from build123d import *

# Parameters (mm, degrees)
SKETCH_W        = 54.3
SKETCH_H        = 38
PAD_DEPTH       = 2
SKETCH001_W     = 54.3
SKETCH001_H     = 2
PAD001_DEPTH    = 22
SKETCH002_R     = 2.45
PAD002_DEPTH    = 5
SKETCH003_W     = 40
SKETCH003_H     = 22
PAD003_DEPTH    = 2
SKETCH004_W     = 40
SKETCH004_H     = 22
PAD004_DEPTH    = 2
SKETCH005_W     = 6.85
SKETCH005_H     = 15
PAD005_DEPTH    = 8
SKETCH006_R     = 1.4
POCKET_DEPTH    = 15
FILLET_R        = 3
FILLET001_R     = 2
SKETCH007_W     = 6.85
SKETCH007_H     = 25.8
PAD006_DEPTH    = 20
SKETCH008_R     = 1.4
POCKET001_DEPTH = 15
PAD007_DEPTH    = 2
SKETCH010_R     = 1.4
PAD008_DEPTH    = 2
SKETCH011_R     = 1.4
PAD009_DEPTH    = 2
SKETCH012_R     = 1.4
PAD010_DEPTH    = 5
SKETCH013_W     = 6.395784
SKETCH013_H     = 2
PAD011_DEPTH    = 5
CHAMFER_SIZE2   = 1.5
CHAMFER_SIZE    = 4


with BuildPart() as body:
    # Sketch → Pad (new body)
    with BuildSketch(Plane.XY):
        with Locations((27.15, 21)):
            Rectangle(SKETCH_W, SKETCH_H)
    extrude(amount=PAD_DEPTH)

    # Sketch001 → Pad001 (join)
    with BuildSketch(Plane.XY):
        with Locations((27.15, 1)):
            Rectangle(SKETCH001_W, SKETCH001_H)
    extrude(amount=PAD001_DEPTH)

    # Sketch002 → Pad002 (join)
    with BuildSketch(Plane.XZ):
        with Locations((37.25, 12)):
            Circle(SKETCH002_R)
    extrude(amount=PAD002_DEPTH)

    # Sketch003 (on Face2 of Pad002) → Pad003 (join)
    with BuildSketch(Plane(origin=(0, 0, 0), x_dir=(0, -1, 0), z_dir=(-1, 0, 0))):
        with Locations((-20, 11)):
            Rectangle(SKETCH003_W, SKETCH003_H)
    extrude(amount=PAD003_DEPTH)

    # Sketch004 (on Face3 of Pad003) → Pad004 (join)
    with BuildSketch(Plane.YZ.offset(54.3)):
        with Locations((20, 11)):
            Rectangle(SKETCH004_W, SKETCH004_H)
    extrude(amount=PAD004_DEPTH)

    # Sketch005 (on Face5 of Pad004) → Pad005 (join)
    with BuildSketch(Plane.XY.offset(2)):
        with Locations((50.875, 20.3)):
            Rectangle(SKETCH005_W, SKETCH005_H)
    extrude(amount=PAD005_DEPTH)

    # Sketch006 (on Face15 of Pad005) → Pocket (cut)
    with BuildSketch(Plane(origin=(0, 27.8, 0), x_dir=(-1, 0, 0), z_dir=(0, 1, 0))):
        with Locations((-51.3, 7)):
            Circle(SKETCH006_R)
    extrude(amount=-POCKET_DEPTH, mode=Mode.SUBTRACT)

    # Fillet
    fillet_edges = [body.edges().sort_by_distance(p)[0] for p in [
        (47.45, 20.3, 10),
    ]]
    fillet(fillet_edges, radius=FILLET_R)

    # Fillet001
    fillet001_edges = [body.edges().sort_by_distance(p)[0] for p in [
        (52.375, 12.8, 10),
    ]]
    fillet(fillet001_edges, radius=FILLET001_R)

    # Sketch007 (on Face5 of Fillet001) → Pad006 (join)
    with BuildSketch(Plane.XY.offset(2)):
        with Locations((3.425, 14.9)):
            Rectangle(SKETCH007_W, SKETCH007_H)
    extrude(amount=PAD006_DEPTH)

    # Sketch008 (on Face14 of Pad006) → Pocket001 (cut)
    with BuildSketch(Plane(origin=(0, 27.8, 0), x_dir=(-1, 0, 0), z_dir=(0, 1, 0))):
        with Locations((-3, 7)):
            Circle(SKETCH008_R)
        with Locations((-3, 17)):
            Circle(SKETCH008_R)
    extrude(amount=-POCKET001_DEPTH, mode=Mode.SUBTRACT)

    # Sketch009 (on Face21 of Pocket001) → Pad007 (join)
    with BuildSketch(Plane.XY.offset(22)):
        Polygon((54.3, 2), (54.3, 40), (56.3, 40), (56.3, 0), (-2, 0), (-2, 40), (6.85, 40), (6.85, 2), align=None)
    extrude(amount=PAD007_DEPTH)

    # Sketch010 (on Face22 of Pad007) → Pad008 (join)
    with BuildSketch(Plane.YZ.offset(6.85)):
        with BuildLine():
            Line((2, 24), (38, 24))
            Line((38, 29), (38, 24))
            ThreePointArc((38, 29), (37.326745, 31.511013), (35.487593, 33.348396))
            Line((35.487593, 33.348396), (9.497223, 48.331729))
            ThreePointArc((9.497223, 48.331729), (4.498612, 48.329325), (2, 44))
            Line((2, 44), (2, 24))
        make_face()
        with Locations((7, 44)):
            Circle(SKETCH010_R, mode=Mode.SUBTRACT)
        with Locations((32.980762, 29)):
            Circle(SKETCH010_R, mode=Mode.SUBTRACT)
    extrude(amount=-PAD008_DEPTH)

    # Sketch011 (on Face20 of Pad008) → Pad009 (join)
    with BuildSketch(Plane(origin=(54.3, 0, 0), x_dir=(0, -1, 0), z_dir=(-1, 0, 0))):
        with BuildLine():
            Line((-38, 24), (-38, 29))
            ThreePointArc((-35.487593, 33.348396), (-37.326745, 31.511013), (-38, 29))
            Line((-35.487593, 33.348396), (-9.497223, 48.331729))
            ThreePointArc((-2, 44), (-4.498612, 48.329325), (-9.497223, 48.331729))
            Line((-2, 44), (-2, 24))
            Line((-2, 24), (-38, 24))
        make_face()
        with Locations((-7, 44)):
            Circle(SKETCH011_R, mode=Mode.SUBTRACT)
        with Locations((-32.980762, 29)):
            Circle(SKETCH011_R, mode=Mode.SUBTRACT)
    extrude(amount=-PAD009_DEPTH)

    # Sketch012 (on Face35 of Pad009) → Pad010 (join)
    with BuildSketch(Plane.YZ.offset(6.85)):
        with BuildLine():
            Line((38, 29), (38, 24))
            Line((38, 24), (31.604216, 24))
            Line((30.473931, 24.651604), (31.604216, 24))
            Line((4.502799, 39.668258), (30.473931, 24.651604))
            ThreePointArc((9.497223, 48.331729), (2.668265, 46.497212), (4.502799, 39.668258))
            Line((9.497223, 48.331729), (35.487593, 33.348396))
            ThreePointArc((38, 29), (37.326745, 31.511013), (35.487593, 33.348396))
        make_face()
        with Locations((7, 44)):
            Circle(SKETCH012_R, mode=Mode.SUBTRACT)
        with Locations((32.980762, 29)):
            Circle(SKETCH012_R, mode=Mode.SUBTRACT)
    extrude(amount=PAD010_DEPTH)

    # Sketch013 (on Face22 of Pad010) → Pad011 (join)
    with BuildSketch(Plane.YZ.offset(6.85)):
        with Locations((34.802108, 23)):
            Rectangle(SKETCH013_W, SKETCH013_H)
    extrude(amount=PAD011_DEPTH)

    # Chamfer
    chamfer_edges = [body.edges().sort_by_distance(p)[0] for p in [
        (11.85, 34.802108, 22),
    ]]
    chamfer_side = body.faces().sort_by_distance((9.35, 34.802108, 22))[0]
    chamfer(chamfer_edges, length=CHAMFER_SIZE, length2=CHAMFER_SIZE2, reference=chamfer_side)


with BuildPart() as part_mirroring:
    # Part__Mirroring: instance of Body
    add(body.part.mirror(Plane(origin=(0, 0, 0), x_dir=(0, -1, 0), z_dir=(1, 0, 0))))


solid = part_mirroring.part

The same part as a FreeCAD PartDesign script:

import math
import FreeCAD as App
import Part
import Sketcher


def edges_at(feature, points):
    """Names of the edges that pass closest to the given points."""
    edges = feature.Shape.Edges
    near = lambda p: min(range(len(edges)), key=lambda i: edges[i].distToShape(Part.Vertex(*p))[0])
    return sorted({f"Edge{near(p) + 1}" for p in points})


def add_polygon(sketch, points):
    """Adds a closed chain of lines whose ends are joined by coincident constraints."""
    first, n = sketch.GeometryCount, len(points)
    for a, b in zip(points, points[1:] + points[:1]):
        sketch.addGeometry(Part.LineSegment(App.Vector(*a, 0), App.Vector(*b, 0)), False)
    for i in range(n):
        sketch.addConstraint(Sketcher.Constraint("Coincident", first + i, 2, first + (i + 1) % n, 1))

doc = App.newDocument("Part")
body = doc.addObject("PartDesign::Body", "Body")

sketch1 = body.newObject("Sketcher::SketchObject", "Sketch")
sketch1.AttachmentSupport = (doc.getObject("XY_Plane"), [""])
sketch1.MapMode = "FlatFace"
add_polygon(sketch1, [(0, 40), (0, 2), (54, 2), (54, 40)])
sketch1.addConstraint([
    Sketcher.Constraint("Vertical", 0),
    Sketcher.Constraint("Horizontal", 1),
    Sketcher.Constraint("Vertical", 2),
    Sketcher.Constraint("Horizontal", 3),
    Sketcher.Constraint("PointOnObject", 0, 2, -2),
    Sketcher.Constraint("DistanceY", 0, 2, 0, 1, 38.0),
    Sketcher.Constraint("DistanceX", 1, 1, 1, 2, 54.3),
    Sketcher.Constraint("DistanceY", -1, 1, 0, 2, 2.0),
])
pad1 = body.newObject("PartDesign::Pad", "Pad")
pad1.Profile = sketch1
pad1.Length = 2

sketch2 = body.newObject("Sketcher::SketchObject", "Sketch001")
sketch2.AttachmentSupport = (doc.getObject("XY_Plane"), [""])
sketch2.MapMode = "FlatFace"
add_polygon(sketch2, [(0, 2), (0, 0), (54.3, 0), (54.3, 2)])
sketch2.addConstraint([
    Sketcher.Constraint("Vertical", 0),
    Sketcher.Constraint("Horizontal", 1),
    Sketcher.Constraint("Vertical", 2),
    Sketcher.Constraint("Horizontal", 3),
    Sketcher.Constraint("Coincident", 0, 2, -1, 1),
    Sketcher.Constraint("DistanceY", 0, 2, 0, 1, 2.0),
    Sketcher.Constraint("DistanceX", 1, 1, 1, 2, 54.3),
])
pad2 = body.newObject("PartDesign::Pad", "Pad001")
pad2.Profile = sketch2
pad2.Length = 22

sketch3 = body.newObject("Sketcher::SketchObject", "Sketch002")
sketch3.AttachmentSupport = (doc.getObject("XZ_Plane"), [""])
sketch3.MapMode = "FlatFace"
sketch3.addGeometry(Part.Circle(App.Vector(37.2, 12, 0), App.Vector(0, 0, 1), 2.5), False)
sketch3.addConstraint([
    Sketcher.Constraint("Diameter", 0, 4.9),
    Sketcher.Constraint("DistanceY", -1, 1, 0, 3, 12.0),
    Sketcher.Constraint("DistanceX", -1, 1, 0, 3, 37.25),
])
pad3 = body.newObject("PartDesign::Pad", "Pad002")
pad3.Profile = sketch3
pad3.Length = 5

sketch4 = body.newObject("Sketcher::SketchObject", "Sketch003")
sketch4.AttachmentSupport = (doc.getObject("YZ_Plane"), [""])
sketch4.MapMode = "FlatFace"
add_polygon(sketch4, [(40, 22), (40, 0), (0, 0), (0, 22)])
sketch4.addConstraint([
    Sketcher.Constraint("Vertical", 0),
    Sketcher.Constraint("Horizontal", 1),
    Sketcher.Constraint("Vertical", 2),
    Sketcher.Constraint("Horizontal", 3),
    Sketcher.Constraint("Coincident", 1, 2, -1, 1),
    Sketcher.Constraint("DistanceX", 1, 2, 1, 1, 40.0),
    Sketcher.Constraint("DistanceY", 0, 2, 0, 1, 22.0),
])
pad4 = body.newObject("PartDesign::Pad", "Pad003")
pad4.Profile = sketch4
pad4.Length = 2
pad4.Reversed = True

sketch5 = body.newObject("Sketcher::SketchObject", "Sketch004")
sketch5.AttachmentSupport = (doc.getObject("YZ_Plane"), [""])
sketch5.MapMode = "FlatFace"
sketch5.AttachmentOffset = App.Placement(App.Vector(0, 0, 54.3), App.Rotation())
add_polygon(sketch5, [(0, 22), (0, 0), (40, 0), (40, 22)])
sketch5.addConstraint([
    Sketcher.Constraint("Vertical", 0),
    Sketcher.Constraint("Horizontal", 1),
    Sketcher.Constraint("Vertical", 2),
    Sketcher.Constraint("Horizontal", 3),
    Sketcher.Constraint("Coincident", 0, 2, -1, 1),
    Sketcher.Constraint("DistanceX", 1, 1, 1, 2, 40.0),
    Sketcher.Constraint("DistanceY", 0, 2, 0, 1, 22.0),
])
pad5 = body.newObject("PartDesign::Pad", "Pad004")
pad5.Profile = sketch5
pad5.Length = 2

sketch6 = body.newObject("Sketcher::SketchObject", "Sketch005")
sketch6.AttachmentSupport = (doc.getObject("XY_Plane"), [""])
sketch6.MapMode = "FlatFace"
sketch6.AttachmentOffset = App.Placement(App.Vector(0, 0, 2), App.Rotation())
add_polygon(sketch6, [(47, 28), (47, 13), (54, 13), (54, 28)])
sketch6.addConstraint([
    Sketcher.Constraint("Vertical", 0),
    Sketcher.Constraint("Horizontal", 1),
    Sketcher.Constraint("Vertical", 2),
    Sketcher.Constraint("Horizontal", 3),
    Sketcher.Constraint("DistanceY", 0, 2, 0, 1, 15.0),
    Sketcher.Constraint("DistanceX", 1, 1, 1, 2, 6.85),
    Sketcher.Constraint("DistanceY", -1, 1, 0, 2, 12.8),
    Sketcher.Constraint("DistanceX", -1, 1, 1, 2, 54.3),
])
pad6 = body.newObject("PartDesign::Pad", "Pad005")
pad6.Profile = sketch6
pad6.Length = 8

sketch7 = body.newObject("Sketcher::SketchObject", "Sketch006")
sketch7.AttachmentSupport = (doc.getObject("XZ_Plane"), [""])
sketch7.MapMode = "FlatFace"
sketch7.AttachmentOffset = App.Placement(App.Vector(0, 0, -27.8), App.Rotation())
sketch7.addGeometry(Part.Circle(App.Vector(51.3, 7, 0), App.Vector(0, 0, 1), 1.4), False)
sketch7.addConstraint([
    Sketcher.Constraint("Diameter", 0, 2.8),
    Sketcher.Constraint("DistanceY", -1, 1, 0, 3, 7.0),
    Sketcher.Constraint("DistanceX", -1, 1, 0, 3, 51.3),
])
pocket1 = body.newObject("PartDesign::Pocket", "Pocket")
pocket1.Profile = sketch7
pocket1.Length = 15
pocket1.Reversed = True
doc.recompute()

fillet = body.newObject("PartDesign::Fillet", "Fillet")
fillet.Base = (pocket1, edges_at(pocket1, [(47.45, 20.3, 10)]))
fillet.Radius = 3
doc.recompute()

fillet2 = body.newObject("PartDesign::Fillet", "Fillet001")
fillet2.Base = (fillet, edges_at(fillet, [(52.375, 12.8, 10)]))
fillet2.Radius = 2

sketch8 = body.newObject("Sketcher::SketchObject", "Sketch007")
sketch8.AttachmentSupport = (doc.getObject("XY_Plane"), [""])
sketch8.MapMode = "FlatFace"
sketch8.AttachmentOffset = App.Placement(App.Vector(0, 0, 2), App.Rotation())
add_polygon(sketch8, [(0, 28), (0, 2), (7, 2), (7, 28)])
sketch8.addConstraint([
    Sketcher.Constraint("Vertical", 0),
    Sketcher.Constraint("Horizontal", 1),
    Sketcher.Constraint("Vertical", 2),
    Sketcher.Constraint("Horizontal", 3),
    Sketcher.Constraint("PointOnObject", 0, 2, -2),
    Sketcher.Constraint("DistanceY", 0, 2, 0, 1, 25.8),
    Sketcher.Constraint("DistanceY", -1, 1, 0, 2, 2.0),
    Sketcher.Constraint("DistanceX", 1, 1, 1, 2, 6.85),
])
pad7 = body.newObject("PartDesign::Pad", "Pad006")
pad7.Profile = sketch8
pad7.Length = 20

sketch9 = body.newObject("Sketcher::SketchObject", "Sketch008")
sketch9.AttachmentSupport = (doc.getObject("XZ_Plane"), [""])
sketch9.MapMode = "FlatFace"
sketch9.AttachmentOffset = App.Placement(App.Vector(0, 0, -27.8), App.Rotation())
sketch9.addGeometry([
    Part.Circle(App.Vector(3, 7, 0), App.Vector(0, 0, 1), 1.4),
    Part.Circle(App.Vector(3, 17, 0), App.Vector(0, 0, 1), 1.4),
], False)
sketch9.addConstraint([
    Sketcher.Constraint("Equal", 0, 1),
    Sketcher.Constraint("Vertical", 0, 3, 1, 3),
    Sketcher.Constraint("Diameter", 0, 2.8),
    Sketcher.Constraint("DistanceX", -1, 1, 0, 3, 3.0),
    Sketcher.Constraint("DistanceY", -1, 1, 0, 3, 7.0),
    Sketcher.Constraint("DistanceY", -1, 1, 1, 3, 17.0),
])
pocket2 = body.newObject("PartDesign::Pocket", "Pocket001")
pocket2.Profile = sketch9
pocket2.Length = 15
pocket2.Reversed = True

sketch10 = body.newObject("Sketcher::SketchObject", "Sketch009")
sketch10.AttachmentSupport = (doc.getObject("XY_Plane"), [""])
sketch10.MapMode = "FlatFace"
sketch10.AttachmentOffset = App.Placement(App.Vector(0, 0, 22), App.Rotation())
add_polygon(sketch10, [(54.3, 40), (54.3, 2), (6.8, 2), (6.8, 40), (-2, 40), (-2, 0), (56.3, 0), (56.3, 40)])
sketch10.addConstraint([
    Sketcher.Constraint("Vertical", 0),
    Sketcher.Constraint("Horizontal", 1),
    Sketcher.Constraint("Vertical", 2),
    Sketcher.Constraint("Horizontal", 3),
    Sketcher.Constraint("Vertical", 4),
    Sketcher.Constraint("Horizontal", 5),
    Sketcher.Constraint("Vertical", 6),
    Sketcher.Constraint("Horizontal", 7),
    Sketcher.Constraint("PointOnObject", 4, 2, -1),
    Sketcher.Constraint("Horizontal", 3, 2, 6, 2),
    Sketcher.Constraint("DistanceX", 7, 2, 7, 1, 2.0),
    Sketcher.Constraint("DistanceY", 0, 2, 0, 1, 38.0),
    Sketcher.Constraint("DistanceY", 4, 2, 4, 1, 40.0),
    Sketcher.Constraint("DistanceX", 5, 1, 5, 2, 58.3),
    Sketcher.Constraint("DistanceX", 3, 2, -1, 1, 2.0),
    Sketcher.Constraint("DistanceX", 1, 2, 1, 1, 47.45),
])
pad8 = body.newObject("PartDesign::Pad", "Pad007")
pad8.Profile = sketch10
pad8.Length = 2

sketch11 = body.newObject("Sketcher::SketchObject", "Sketch010")
sketch11.AttachmentSupport = (doc.getObject("YZ_Plane"), [""])
sketch11.MapMode = "FlatFace"
sketch11.AttachmentOffset = App.Placement(App.Vector(0, 0, 6.85), App.Rotation())
sketch11.addGeometry([
    Part.LineSegment(App.Vector(2, 24, 0), App.Vector(38, 24, 0)),
    Part.LineSegment(App.Vector(38, 24, 0), App.Vector(38, 29, 0)),
    Part.ArcOfCircle(Part.Circle(App.Vector(33, 29, 0), App.Vector(0, 0, 1), 5), math.radians(0), math.radians(60)),
    Part.LineSegment(App.Vector(35.5, 33.3, 0), App.Vector(9.5, 48.3, 0)),
    Part.ArcOfCircle(Part.Circle(App.Vector(7, 44, 0), App.Vector(0, 0, 1), 5), math.radians(60), math.radians(180)),
    Part.LineSegment(App.Vector(2, 44, 0), App.Vector(2, 24, 0)),
    Part.Circle(App.Vector(33, 29, 0), App.Vector(0, 0, 1), 1.4),
    Part.Circle(App.Vector(7, 44, 0), App.Vector(0, 0, 1), 1.4),
], False)
sketch11.addConstraint([
    Sketcher.Constraint("Coincident", 0, 2, 1, 1),
    Sketcher.Constraint("Tangent", 1, 2, 2, 1),
    Sketcher.Constraint("Tangent", 2, 2, 3, 1),
    Sketcher.Constraint("Tangent", 3, 2, 4, 1),
    Sketcher.Constraint("Tangent", 4, 2, 5, 1),
    Sketcher.Constraint("Coincident", 5, 2, 0, 1),
    Sketcher.Constraint("Horizontal", 0),
    Sketcher.Constraint("Vertical", 1),
    Sketcher.Constraint("Vertical", 5),
    Sketcher.Constraint("Coincident", 6, 3, 2, 3),
    Sketcher.Constraint("Coincident", 7, 3, 4, 3),
    Sketcher.Constraint("Equal", 6, 7),
    Sketcher.Constraint("Radius", 4, 5.0),
    Sketcher.Constraint("Diameter", 6, 2.8),
    Sketcher.Constraint("DistanceX", 0, 1, 0, 2, 36.0),
    Sketcher.Constraint("DistanceY", 1, 1, 1, 2, 5.0),
    Sketcher.Constraint("DistanceY", 5, 2, 5, 1, 20.0),
    Sketcher.Constraint("DistanceY", -1, 1, 2, 3, 29.000002),
    Sketcher.Constraint("DistanceX", -1, 1, 4, 3, 7.0),
    Sketcher.Constraint("Radius", 2, 5.019235),
])
pad9 = body.newObject("PartDesign::Pad", "Pad008")
pad9.Profile = sketch11
pad9.Length = 2
pad9.Reversed = True

sketch12 = body.newObject("Sketcher::SketchObject", "Sketch011")
sketch12.AttachmentSupport = (doc.getObject("YZ_Plane"), [""])
sketch12.MapMode = "FlatFace"
sketch12.AttachmentOffset = App.Placement(App.Vector(0, 0, 54.3), App.Rotation())
sketch12.addGeometry([
    Part.LineSegment(App.Vector(38, 29, 0), App.Vector(38, 24, 0)),
    Part.LineSegment(App.Vector(38, 24, 0), App.Vector(2, 24, 0)),
    Part.LineSegment(App.Vector(2, 24, 0), App.Vector(2, 44, 0)),
    Part.ArcOfCircle(Part.Circle(App.Vector(7, 44, 0), App.Vector(0, 0, 1), 5), math.radians(60), math.radians(180)),
    Part.LineSegment(App.Vector(9.5, 48.3, 0), App.Vector(35.5, 33.3, 0)),
    Part.ArcOfCircle(Part.Circle(App.Vector(33, 29, 0), App.Vector(0, 0, 1), 5), math.radians(0), math.radians(60)),
    Part.Circle(App.Vector(33, 29, 0), App.Vector(0, 0, 1), 1.4),
    Part.Circle(App.Vector(7, 44, 0), App.Vector(0, 0, 1), 1.4),
], False)
sketch12.addConstraint([
    Sketcher.Constraint("Coincident", 0, 2, 1, 1),
    Sketcher.Constraint("Coincident", 1, 2, 2, 1),
    Sketcher.Constraint("Tangent", 2, 2, 3, 2),
    Sketcher.Constraint("Tangent", 3, 1, 4, 1),
    Sketcher.Constraint("Tangent", 4, 2, 5, 2),
    Sketcher.Constraint("Tangent", 5, 1, 0, 1),
    Sketcher.Constraint("Vertical", 0),
    Sketcher.Constraint("Horizontal", 1),
    Sketcher.Constraint("Vertical", 2),
    Sketcher.Constraint("Coincident", 6, 3, 5, 3),
    Sketcher.Constraint("Coincident", 7, 3, 3, 3),
    Sketcher.Constraint("Equal", 6, 7),
    Sketcher.Constraint("Radius", 3, 5.0),
    Sketcher.Constraint("Diameter", 6, 2.8),
    Sketcher.Constraint("DistanceX", 1, 2, 1, 1, 36.0),
    Sketcher.Constraint("DistanceY", 0, 2, 0, 1, 5.0),
    Sketcher.Constraint("DistanceY", 2, 1, 2, 2, 20.0),
    Sketcher.Constraint("DistanceX", -1, 1, 3, 3, 7.0),
    Sketcher.Constraint("DistanceY", -1, 1, 3, 3, 44.0),
    Sketcher.Constraint("Radius", 5, 5.019235),
])
pad10 = body.newObject("PartDesign::Pad", "Pad009")
pad10.Profile = sketch12
pad10.Length = 2

sketch13 = body.newObject("Sketcher::SketchObject", "Sketch012")
sketch13.AttachmentSupport = (doc.getObject("YZ_Plane"), [""])
sketch13.MapMode = "FlatFace"
sketch13.AttachmentOffset = App.Placement(App.Vector(0, 0, 6.85), App.Rotation())
sketch13.addGeometry([
    Part.LineSegment(App.Vector(38, 24, 0), App.Vector(38, 29, 0)),
    Part.ArcOfCircle(Part.Circle(App.Vector(33, 29, 0), App.Vector(0, 0, 1), 5), math.radians(0), math.radians(60)),
    Part.LineSegment(App.Vector(35.5, 33.3, 0), App.Vector(9.5, 48.3, 0)),
    Part.ArcOfCircle(Part.Circle(App.Vector(7, 44, 0), App.Vector(0, 0, 1), 5), math.radians(60), math.radians(240)),
    Part.LineSegment(App.Vector(4.5, 39.7, 0), App.Vector(30.5, 24.7, 0)),
    Part.LineSegment(App.Vector(30.5, 24.7, 0), App.Vector(31.6, 24, 0)),
    Part.LineSegment(App.Vector(31.6, 24, 0), App.Vector(38, 24, 0)),
    Part.Circle(App.Vector(33, 29, 0), App.Vector(0, 0, 1), 1.4),
    Part.Circle(App.Vector(7, 44, 0), App.Vector(0, 0, 1), 1.4),
], False)
sketch13.addConstraint([
    Sketcher.Constraint("Tangent", 0, 2, 1, 1),
    Sketcher.Constraint("Tangent", 1, 2, 2, 1),
    Sketcher.Constraint("Tangent", 2, 2, 3, 1),
    Sketcher.Constraint("Coincident", 3, 2, 4, 1),
    Sketcher.Constraint("Coincident", 4, 2, 5, 1),
    Sketcher.Constraint("Coincident", 5, 2, 6, 1),
    Sketcher.Constraint("Coincident", 6, 2, 0, 1),
    Sketcher.Constraint("Vertical", 0),
    Sketcher.Constraint("Horizontal", 6),
    Sketcher.Constraint("Coincident", 7, 3, 1, 3),
    Sketcher.Constraint("Coincident", 8, 3, 3, 3),
    Sketcher.Constraint("Equal", 7, 8),
    Sketcher.Constraint("Parallel", 2, 5),
    Sketcher.Constraint("Equal", 2, 4),
    Sketcher.Constraint("Radius", 3, 5.0),
    Sketcher.Constraint("Diameter", 7, 2.8),
    Sketcher.Constraint("DistanceY", 0, 1, 0, 2, 5.0),
    Sketcher.Constraint("DistanceY", -1, 1, 1, 3, 29.000002),
    Sketcher.Constraint("DistanceX", -1, 1, 3, 3, 7.0),
    Sketcher.Constraint("DistanceY", -1, 1, 3, 3, 44.0),
    Sketcher.Constraint("DistanceX", -1, 1, 0, 2, 38.0),
    Sketcher.Constraint("Radius", 1, 5.019235),
    Sketcher.Constraint("DistanceX", -1, 1, 3, 2, 4.502799),
    Sketcher.Constraint("DistanceX", 6, 1, 6, 2, 6.395784),
])
pad11 = body.newObject("PartDesign::Pad", "Pad010")
pad11.Profile = sketch13
pad11.Length = 5

sketch14 = body.newObject("Sketcher::SketchObject", "Sketch013")
sketch14.AttachmentSupport = (doc.getObject("YZ_Plane"), [""])
sketch14.MapMode = "FlatFace"
sketch14.AttachmentOffset = App.Placement(App.Vector(0, 0, 6.85), App.Rotation())
add_polygon(sketch14, [(31.6, 24), (31.6, 22), (38, 22), (38, 24)])
sketch14.addConstraint([
    Sketcher.Constraint("Vertical", 0),
    Sketcher.Constraint("Horizontal", 1),
    Sketcher.Constraint("Vertical", 2),
    Sketcher.Constraint("Horizontal", 3),
    Sketcher.Constraint("DistanceY", 0, 2, 0, 1, 2.0),
    Sketcher.Constraint("DistanceY", -1, 1, 0, 2, 22.0),
    Sketcher.Constraint("DistanceX", -1, 1, 1, 2, 38.0),
    Sketcher.Constraint("DistanceX", 1, 1, 1, 2, 6.395784),
])
pad12 = body.newObject("PartDesign::Pad", "Pad011")
pad12.Profile = sketch14
pad12.Length = 5
doc.recompute()

chamfer = body.newObject("PartDesign::Chamfer", "Chamfer")
chamfer.Base = (pad12, edges_at(pad12, [(11.85, 34.802, 22)]))
chamfer.ChamferType = "Two distances"
chamfer.Size = 4
chamfer.Size2 = 1.5
body2 = doc.addObject("PartDesign::Body", "Body001")
doc.recompute()

mirroring = doc.addObject("Part::Mirroring", "Mirroring")
mirroring.Source = body
mirroring.Base = App.Vector(0, 0, 0)
mirroring.Normal = App.Vector(1, 0, 0)
body2.BaseFeature = mirroring
doc.recompute()
body.Visibility = False
mirroring.Visibility = False

doc.recompute()
